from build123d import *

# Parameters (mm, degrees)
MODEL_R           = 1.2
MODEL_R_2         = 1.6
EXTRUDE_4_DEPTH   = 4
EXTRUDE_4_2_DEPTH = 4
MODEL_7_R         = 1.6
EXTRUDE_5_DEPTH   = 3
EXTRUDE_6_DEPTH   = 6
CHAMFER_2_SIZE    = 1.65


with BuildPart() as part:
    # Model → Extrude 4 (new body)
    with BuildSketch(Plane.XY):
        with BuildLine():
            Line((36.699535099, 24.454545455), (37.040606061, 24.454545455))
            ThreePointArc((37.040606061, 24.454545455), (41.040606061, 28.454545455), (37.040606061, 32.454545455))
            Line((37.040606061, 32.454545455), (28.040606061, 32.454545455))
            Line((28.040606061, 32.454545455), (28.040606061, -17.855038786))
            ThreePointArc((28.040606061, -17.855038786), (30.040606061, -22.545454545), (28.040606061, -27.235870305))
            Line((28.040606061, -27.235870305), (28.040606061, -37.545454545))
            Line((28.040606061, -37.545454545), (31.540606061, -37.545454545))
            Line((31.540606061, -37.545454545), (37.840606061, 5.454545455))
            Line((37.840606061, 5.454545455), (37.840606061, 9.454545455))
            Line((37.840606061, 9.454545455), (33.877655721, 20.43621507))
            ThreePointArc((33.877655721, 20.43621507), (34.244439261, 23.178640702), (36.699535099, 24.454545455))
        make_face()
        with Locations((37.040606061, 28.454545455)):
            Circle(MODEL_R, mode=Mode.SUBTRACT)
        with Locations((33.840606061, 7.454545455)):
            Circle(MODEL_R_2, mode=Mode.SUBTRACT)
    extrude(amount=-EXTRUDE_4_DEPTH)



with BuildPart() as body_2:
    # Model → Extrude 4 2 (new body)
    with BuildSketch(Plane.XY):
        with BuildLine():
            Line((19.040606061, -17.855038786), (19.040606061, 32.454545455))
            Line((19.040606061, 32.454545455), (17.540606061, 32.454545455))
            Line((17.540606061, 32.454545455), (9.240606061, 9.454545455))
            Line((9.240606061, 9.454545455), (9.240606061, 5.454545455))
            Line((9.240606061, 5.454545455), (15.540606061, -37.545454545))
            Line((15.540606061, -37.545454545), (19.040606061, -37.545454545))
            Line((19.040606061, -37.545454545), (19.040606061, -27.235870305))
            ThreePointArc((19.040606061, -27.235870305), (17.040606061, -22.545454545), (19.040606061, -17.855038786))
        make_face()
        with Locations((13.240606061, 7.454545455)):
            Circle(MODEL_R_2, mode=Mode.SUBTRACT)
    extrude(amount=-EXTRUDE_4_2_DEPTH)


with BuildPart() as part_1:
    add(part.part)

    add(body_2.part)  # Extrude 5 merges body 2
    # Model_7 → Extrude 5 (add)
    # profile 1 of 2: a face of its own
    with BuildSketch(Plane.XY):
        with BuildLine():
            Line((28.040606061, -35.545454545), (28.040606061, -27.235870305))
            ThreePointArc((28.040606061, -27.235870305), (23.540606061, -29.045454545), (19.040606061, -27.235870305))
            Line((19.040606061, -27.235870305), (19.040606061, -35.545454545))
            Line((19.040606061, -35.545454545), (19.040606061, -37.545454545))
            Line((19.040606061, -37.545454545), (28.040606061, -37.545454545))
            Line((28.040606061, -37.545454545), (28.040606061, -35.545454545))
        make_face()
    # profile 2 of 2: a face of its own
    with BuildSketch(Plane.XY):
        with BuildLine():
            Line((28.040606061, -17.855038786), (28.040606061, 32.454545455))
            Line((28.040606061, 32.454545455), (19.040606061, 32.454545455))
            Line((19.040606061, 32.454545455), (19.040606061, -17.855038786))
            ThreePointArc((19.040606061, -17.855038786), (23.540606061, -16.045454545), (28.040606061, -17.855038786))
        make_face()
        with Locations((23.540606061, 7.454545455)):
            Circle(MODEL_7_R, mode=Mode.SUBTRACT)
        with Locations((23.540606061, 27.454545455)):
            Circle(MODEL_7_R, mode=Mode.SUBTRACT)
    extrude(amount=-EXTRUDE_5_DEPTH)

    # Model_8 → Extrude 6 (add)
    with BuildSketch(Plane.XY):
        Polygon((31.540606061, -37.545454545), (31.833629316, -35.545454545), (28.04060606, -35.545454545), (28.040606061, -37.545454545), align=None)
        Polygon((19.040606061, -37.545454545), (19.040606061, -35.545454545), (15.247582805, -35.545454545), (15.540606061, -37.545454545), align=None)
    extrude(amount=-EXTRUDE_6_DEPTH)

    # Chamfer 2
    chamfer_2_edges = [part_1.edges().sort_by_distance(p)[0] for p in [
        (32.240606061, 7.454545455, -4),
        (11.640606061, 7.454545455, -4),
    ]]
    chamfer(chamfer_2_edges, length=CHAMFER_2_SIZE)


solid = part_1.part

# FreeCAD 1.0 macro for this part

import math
import FreeCAD as App
import Part
import Sketcher

V = App.Vector


def edges_at(feature, points):
    """Names of the edges that pass closest to the given points."""
    edges = feature.Shape.Edges
    near = lambda p: min(range(len(edges)), key=lambda i: edges[i].distToShape(Part.Vertex(*p))[0])
    return sorted({f"Edge{near(p) + 1}" for p in points})


def add_polygon(sketch, points):
    """Adds a closed chain of lines whose ends are joined by coincident constraints."""
    first, n = sketch.GeometryCount, len(points)
    for a, b in zip(points, points[1:] + points[:1]):
        sketch.addGeometry(Part.LineSegment(App.Vector(*a, 0), App.Vector(*b, 0)), False)
    for i in range(n):
        sketch.addConstraint(Sketcher.Constraint("Coincident", first + i, 2, first + (i + 1) % n, 1))

doc = App.newDocument("Part")
params = doc.addObject("Spreadsheet::Sheet", "Params")
for row, (alias, value) in enumerate([
    ("sketch1_radius", "4 mm"),
    ("sketch1_radius2", "3 mm"),
    ("sketch1_diameter", "3.2 mm"),
    ("sketch1_diameter2", "2.4 mm"),
    ("sketch1_radius3", "6.5 mm"),
    ("pad1_length", "4 mm"),
    ("sketch2_diameter", "3.2 mm"),
    ("sketch2_radius", "6.5 mm"),
    ("sketch2_height", "4 mm"),
    ("sketch2_width", "1.5 mm"),
    ("sketch2_width2", "3.5 mm"),
    ("pad2_length", "4 mm"),
    ("sketch3_diameter", "3.2 mm"),
    ("sketch3_radius", "6.5 mm"),
    ("sketch3_width", "9 mm"),
    ("pad3_length", "3 mm"),
    ("sketch4_height", "2 mm"),
    ("sketch4_width", "3.5 mm"),
    ("pad4_length", "6 mm"),
    ("chamfer_size", "1.65 mm"),
], start=1):
    params.set(f"A{row}", alias)
    params.set(f"B{row}", "=" + value)
    params.setAlias(f"B{row}", alias)

body = doc.addObject("PartDesign::Body", "Body")

sketch1 = doc.addObject("Sketcher::SketchObject", "Sketch")
body.addObject(sketch1)
sketch1.AttachmentSupport = (doc.XY_Plane, [""])
sketch1.MapMode = "FlatFace"
sketch1.addGeometry(Part.LineSegment(V(36.7, 24.45, 0), V(37.04, 24.45, 0)), False)
sketch1.addGeometry(Part.ArcOfCircle(Part.Circle(V(37.04, 28.45, 0), V(0, 0, 1), 4), math.radians(-90), math.radians(90)), False)
sketch1.addGeometry(Part.LineSegment(V(37.04, 32.45, 0), V(28.04, 32.45, 0)), False)
sketch1.addGeometry(Part.LineSegment(V(28.04, 32.45, 0), V(28.04, -17.86, 0)), False)
sketch1.addGeometry(Part.ArcOfCircle(Part.Circle(V(23.54, -22.55, 0), V(0, 0, 1), 6.5), math.radians(-46), math.radians(46)), False)
sketch1.addGeometry(Part.LineSegment(V(28.04, -27.24, 0), V(28.04, -37.55, 0)), False)
sketch1.addGeometry(Part.LineSegment(V(28.04, -37.55, 0), V(31.54, -37.55, 0)), False)
sketch1.addGeometry(Part.LineSegment(V(31.54, -37.55, 0), V(37.84, 5.45, 0)), False)
sketch1.addGeometry(Part.LineSegment(V(37.84, 5.45, 0), V(37.84, 9.45, 0)), False)
sketch1.addGeometry(Part.LineSegment(V(37.84, 9.45, 0), V(33.88, 20.44, 0)), False)
sketch1.addGeometry(Part.ArcOfCircle(Part.Circle(V(36.7, 21.45, 0), V(0, 0, 1), 3), math.radians(90), math.radians(200)), False)
sketch1.addGeometry(Part.Circle(V(33.84, 7.45, 0), V(0, 0, 1), 1.6), False)
sketch1.addGeometry(Part.Circle(V(37.04, 28.45, 0), V(0, 0, 1), 1.2), False)
sketch1.addConstraint(Sketcher.Constraint("Tangent", 0, 2, 1, 1))
sketch1.addConstraint(Sketcher.Constraint("Tangent", 1, 2, 2, 1))
sketch1.addConstraint(Sketcher.Constraint("Coincident", 2, 2, 3, 1))
sketch1.addConstraint(Sketcher.Constraint("Coincident", 3, 2, 4, 2))
sketch1.addConstraint(Sketcher.Constraint("Coincident", 4, 1, 5, 1))
sketch1.addConstraint(Sketcher.Constraint("Coincident", 5, 2, 6, 1))
sketch1.addConstraint(Sketcher.Constraint("Coincident", 6, 2, 7, 1))
sketch1.addConstraint(Sketcher.Constraint("Coincident", 7, 2, 8, 1))
sketch1.addConstraint(Sketcher.Constraint("Coincident", 8, 2, 9, 1))
sketch1.addConstraint(Sketcher.Constraint("Tangent", 9, 2, 10, 2))
sketch1.addConstraint(Sketcher.Constraint("Tangent", 10, 1, 0, 1))
sketch1.addConstraint(Sketcher.Constraint("Horizontal", 0))
sketch1.addConstraint(Sketcher.Constraint("Horizontal", 2))
sketch1.addConstraint(Sketcher.Constraint("Vertical", 3))
sketch1.addConstraint(Sketcher.Constraint("Vertical", 5))
sketch1.addConstraint(Sketcher.Constraint("Horizontal", 6))
sketch1.addConstraint(Sketcher.Constraint("Vertical", 8))
sketch1.addConstraint(Sketcher.Constraint("Coincident", 12, 3, 1, 3))
sketch1.addConstraint(Sketcher.Constraint("Vertical", 3, 2, 4, 1))
sketch1.addConstraint(Sketcher.Constraint("Radius", 1, 4.0))
sketch1.addConstraint(Sketcher.Constraint("Radius", 10, 3.0))
sketch1.addConstraint(Sketcher.Constraint("Diameter", 11, 3.2))
sketch1.addConstraint(Sketcher.Constraint("Diameter", 12, 2.4))
sketch1.addConstraint(Sketcher.Constraint("Radius", 4, 6.5))
sketch1.addConstraint(Sketcher.Constraint("DistanceX", 2, 2, 2, 1, 9.0))
sketch1.addConstraint(Sketcher.Constraint("DistanceY", 8, 1, 8, 2, 4.0))
sketch1.addConstraint(Sketcher.Constraint("DistanceX", 6, 1, 6, 2, 3.5))
sketch1.addConstraint(Sketcher.Constraint("DistanceY", 4, 3, 1, 3, 51.0))
sketch1.addConstraint(Sketcher.Constraint("DistanceY", 11, 3, 10, 3, 14.0))
sketch1.addConstraint(Sketcher.Constraint("DistanceY", 5, 2, 4, 3, 15.0))
sketch1.addConstraint(Sketcher.Constraint("DistanceX", 4, 3, 6, 2, 8.0))
sketch1.addConstraint(Sketcher.Constraint("DistanceX", 11, 3, 7, 2, 4.0))
sketch1.addConstraint(Sketcher.Constraint("DistanceY", 7, 2, 11, 3, 2.0))
sketch1.addConstraint(Sketcher.Constraint("DistanceX", 11, 3, 1, 3, 3.2))
sketch1.addConstraint(Sketcher.Constraint("DistanceX", 0, 1, 0, 2, 0.341071))
sketch1.addConstraint(Sketcher.Constraint("DistanceY", 3, 2, -1, 1, 17.855039))
sketch1.addConstraint(Sketcher.Constraint("DistanceX", -1, 1, 1, 3, 37.040606))
sketch1.setExpression("Constraints[19]", "Params.sketch1_radius")
sketch1.setExpression("Constraints[20]", "Params.sketch1_radius2")
sketch1.setExpression("Constraints[21]", "Params.sketch1_diameter")
sketch1.setExpression("Constraints[22]", "Params.sketch1_diameter2")
sketch1.setExpression("Constraints[23]", "Params.sketch1_radius3")
pad1 = doc.addObject("PartDesign::Pad", "Pad")
body.addObject(pad1)
pad1.Profile = sketch1
pad1.setExpression("Length", "Params.pad1_length")
pad1.Reversed = True
body2 = doc.addObject("PartDesign::Body", "Body001")

sketch2 = doc.addObject("Sketcher::SketchObject", "Sketch001")
body2.addObject(sketch2)
sketch2.AttachmentSupport = (doc.getObject("XY_Plane001"), [""])
sketch2.MapMode = "FlatFace"
sketch2.addGeometry(Part.LineSegment(V(19, -17.9, 0), V(19, 32.5, 0)), False)
sketch2.addGeometry(Part.LineSegment(V(19, 32.5, 0), V(17.5, 32.5, 0)), False)
sketch2.addGeometry(Part.LineSegment(V(17.5, 32.5, 0), V(9.2, 9.5, 0)), False)
sketch2.addGeometry(Part.LineSegment(V(9.2, 9.5, 0), V(9.2, 5.5, 0)), False)
sketch2.addGeometry(Part.LineSegment(V(9.2, 5.5, 0), V(15.5, -37.5, 0)), False)
sketch2.addGeometry(Part.LineSegment(V(15.5, -37.5, 0), V(19, -37.5, 0)), False)
sketch2.addGeometry(Part.LineSegment(V(19, -37.5, 0), V(19, -27.2, 0)), False)
sketch2.addGeometry(Part.ArcOfCircle(Part.Circle(V(23.5, -22.5, 0), V(0, 0, 1), 6.5), math.radians(134), math.radians(226)), False)
sketch2.addGeometry(Part.Circle(V(13.2, 7.5, 0), V(0, 0, 1), 1.6), False)
sketch2.addConstraint(Sketcher.Constraint("Coincident", 0, 2, 1, 1))
sketch2.addConstraint(Sketcher.Constraint("Coincident", 1, 2, 2, 1))
sketch2.addConstraint(Sketcher.Constraint("Coincident", 2, 2, 3, 1))
sketch2.addConstraint(Sketcher.Constraint("Coincident", 3, 2, 4, 1))
sketch2.addConstraint(Sketcher.Constraint("Coincident", 4, 2, 5, 1))
sketch2.addConstraint(Sketcher.Constraint("Coincident", 5, 2, 6, 1))
sketch2.addConstraint(Sketcher.Constraint("Coincident", 6, 2, 7, 2))
sketch2.addConstraint(Sketcher.Constraint("Coincident", 7, 1, 0, 1))
sketch2.addConstraint(Sketcher.Constraint("Vertical", 0))
sketch2.addConstraint(Sketcher.Constraint("Horizontal", 1))
sketch2.addConstraint(Sketcher.Constraint("Vertical", 3))
sketch2.addConstraint(Sketcher.Constraint("Horizontal", 5))
sketch2.addConstraint(Sketcher.Constraint("Vertical", 6))
sketch2.addConstraint(Sketcher.Constraint("Vertical", 0, 2, 5, 2))
sketch2.addConstraint(Sketcher.Constraint("Diameter", 8, 3.2))
sketch2.addConstraint(Sketcher.Constraint("Radius", 7, 6.5))
sketch2.addConstraint(Sketcher.Constraint("DistanceY", 3, 2, 3, 1, 4.0))
sketch2.addConstraint(Sketcher.Constraint("DistanceX", 1, 2, 1, 1, 1.5))
sketch2.addConstraint(Sketcher.Constraint("DistanceX", 5, 1, 5, 2, 3.5))
sketch2.addConstraint(Sketcher.Constraint("DistanceY", 7, 3, 8, 3, 30.0))
sketch2.addConstraint(Sketcher.Constraint("DistanceY", 8, 3, 0, 2, 25.0))
sketch2.addConstraint(Sketcher.Constraint("DistanceX", 1, 2, 7, 3, 6.0))
sketch2.addConstraint(Sketcher.Constraint("DistanceX", 2, 2, 8, 3, 4.0))
sketch2.addConstraint(Sketcher.Constraint("DistanceY", 8, 3, 2, 2, 2.0))
sketch2.addConstraint(Sketcher.Constraint("DistanceY", 4, 2, 7, 3, 15.0))
sketch2.addConstraint(Sketcher.Constraint("DistanceX", 8, 3, 7, 3, 10.3))
sketch2.addConstraint(Sketcher.Constraint("DistanceY", 6, 2, -1, 1, 27.23587))
sketch2.addConstraint(Sketcher.Constraint("DistanceX", -1, 1, 7, 3, 23.540606))
sketch2.setExpression("Constraints[14]", "Params.sketch2_diameter")
sketch2.setExpression("Constraints[15]", "Params.sketch2_radius")
sketch2.setExpression("Constraints[16]", "Params.sketch2_height")
sketch2.setExpression("Constraints[17]", "Params.sketch2_width")
sketch2.setExpression("Constraints[18]", "Params.sketch2_width2")
pad2 = doc.addObject("PartDesign::Pad", "Pad001")
body2.addObject(pad2)
pad2.Profile = sketch2
pad2.setExpression("Length", "Params.pad2_length")
pad2.Reversed = True
body.AllowCompound = True
doc.recompute()

boolean = doc.addObject("PartDesign::Boolean", "Boolean")
body.addObject(boolean)
boolean.Type = "Fuse"
boolean.addObjects([body2])

sketch3 = doc.addObject("Sketcher::SketchObject", "Sketch002")
body.addObject(sketch3)
sketch3.AttachmentSupport = (doc.XY_Plane, [""])
sketch3.MapMode = "FlatFace"
sketch3.addGeometry(Part.ArcOfCircle(Part.Circle(V(23.5, -22.5, 0), V(0, 0, 1), 6.5), math.radians(-134), math.radians(-46)), False)
sketch3.addGeometry(Part.LineSegment(V(19, -27.2, 0), V(19, -37.5, 0)), False)
sketch3.addGeometry(Part.LineSegment(V(19, -37.5, 0), V(28, -37.5, 0)), False)
sketch3.addGeometry(Part.LineSegment(V(28, -37.5, 0), V(28, -27.2, 0)), False)
sketch3.addGeometry(Part.LineSegment(V(28, -17.9, 0), V(28, 32.5, 0)), False)
sketch3.addGeometry(Part.LineSegment(V(28, 32.5, 0), V(19, 32.5, 0)), False)
sketch3.addGeometry(Part.LineSegment(V(19, 32.5, 0), V(19, -17.9, 0)), False)
sketch3.addGeometry(Part.ArcOfCircle(Part.Circle(V(23.5, -22.5, 0), V(0, 0, 1), 6.5), math.radians(46), math.radians(134)), False)
sketch3.addGeometry(Part.Circle(V(23.5, 7.5, 0), V(0, 0, 1), 1.6), False)
sketch3.addGeometry(Part.Circle(V(23.5, 27.5, 0), V(0, 0, 1), 1.6), False)
sketch3.addConstraint(Sketcher.Constraint("Coincident", 0, 1, 1, 1))
sketch3.addConstraint(Sketcher.Constraint("Coincident", 1, 2, 2, 1))
sketch3.addConstraint(Sketcher.Constraint("Coincident", 2, 2, 3, 1))
sketch3.addConstraint(Sketcher.Constraint("Coincident", 3, 2, 0, 2))
sketch3.addConstraint(Sketcher.Constraint("Coincident", 4, 2, 5, 1))
sketch3.addConstraint(Sketcher.Constraint("Coincident", 5, 2, 6, 1))
sketch3.addConstraint(Sketcher.Constraint("Coincident", 6, 2, 7, 2))
sketch3.addConstraint(Sketcher.Constraint("Coincident", 7, 1, 4, 1))
sketch3.addConstraint(Sketcher.Constraint("Vertical", 1))
sketch3.addConstraint(Sketcher.Constraint("Horizontal", 2))
sketch3.addConstraint(Sketcher.Constraint("Vertical", 3))
sketch3.addConstraint(Sketcher.Constraint("Vertical", 4))
sketch3.addConstraint(Sketcher.Constraint("Horizontal", 5))
sketch3.addConstraint(Sketcher.Constraint("Vertical", 6))
sketch3.addConstraint(Sketcher.Constraint("Coincident", 7, 3, 0, 3))
sketch3.addConstraint(Sketcher.Constraint("Equal", 0, 7))
sketch3.addConstraint(Sketcher.Constraint("Equal", 8, 9))
sketch3.addConstraint(Sketcher.Constraint("Horizontal", 0, 1, 3, 2))
sketch3.addConstraint(Sketcher.Constraint("Horizontal", 6, 2, 7, 1))
sketch3.addConstraint(Sketcher.Constraint("Vertical", 7, 3, 8, 3))
sketch3.addConstraint(Sketcher.Constraint("Vertical", 8, 3, 9, 3))
sketch3.addConstraint(Sketcher.Constraint("Vertical", 3, 2, 4, 2))
sketch3.addConstraint(Sketcher.Constraint("Diameter", 8, 3.2))
sketch3.addConstraint(Sketcher.Constraint("Radius", 0, 6.5))
sketch3.addConstraint(Sketcher.Constraint("DistanceX", 2, 1, 2, 2, 9.0))
sketch3.addConstraint(Sketcher.Constraint("DistanceY", 7, 3, 8, 3, 30.0))
sketch3.addConstraint(Sketcher.Constraint("DistanceY", 8, 3, 9, 3, 20.0))
sketch3.addConstraint(Sketcher.Constraint("DistanceY", 1, 2, 0, 3, 15.0))
sketch3.addConstraint(Sketcher.Constraint("DistanceY", 9, 3, 4, 2, 5.0))
sketch3.addConstraint(Sketcher.Constraint("DistanceY", 0, 1, -1, 1, 27.23587))
sketch3.addConstraint(Sketcher.Constraint("DistanceX", -1, 1, 0, 3, 23.540606))
sketch3.setExpression("Constraints[22]", "Params.sketch3_diameter")
sketch3.setExpression("Constraints[23]", "Params.sketch3_radius")
sketch3.setExpression("Constraints[24]", "Params.sketch3_width")
pad3 = doc.addObject("PartDesign::Pad", "Pad002")
body.addObject(pad3)
pad3.Profile = sketch3
pad3.setExpression("Length", "Params.pad3_length")
pad3.Reversed = True

sketch4 = doc.addObject("Sketcher::SketchObject", "Sketch003")
body.addObject(sketch4)
sketch4.AttachmentSupport = (doc.XY_Plane, [""])
sketch4.MapMode = "FlatFace"
add_polygon(sketch4, [(31.5, -37.5), (31.8, -35.5), (28, -35.5), (28, -37.5)])
add_polygon(sketch4, [(19, -37.5), (19, -35.5), (15.2, -35.5), (15.5, -37.5)])
sketch4.addConstraint(Sketcher.Constraint("Horizontal", 1))
sketch4.addConstraint(Sketcher.Constraint("Vertical", 2))
sketch4.addConstraint(Sketcher.Constraint("Horizontal", 3))
sketch4.addConstraint(Sketcher.Constraint("Vertical", 4))
sketch4.addConstraint(Sketcher.Constraint("Horizontal", 5))
sketch4.addConstraint(Sketcher.Constraint("Horizontal", 7))
sketch4.addConstraint(Sketcher.Constraint("Horizontal", 1, 2, 4, 2))
sketch4.addConstraint(Sketcher.Constraint("Horizontal", 3, 2, 6, 2))
sketch4.addConstraint(Sketcher.Constraint("Equal", 1, 5))
sketch4.addConstraint(Sketcher.Constraint("Equal", 3, 7))
sketch4.addConstraint(Sketcher.Constraint("DistanceY", 2, 2, 2, 1, 2.0))
sketch4.addConstraint(Sketcher.Constraint("DistanceX", 3, 1, 3, 2, 3.5))
sketch4.addConstraint(Sketcher.Constraint("DistanceX", 4, 2, 1, 2, 9.0))
sketch4.addConstraint(Sketcher.Constraint("Distance", 0, 2.021352))
sketch4.addConstraint(Sketcher.Constraint("DistanceX", -1, 1, 0, 2, 31.833629))
sketch4.addConstraint(Sketcher.Constraint("DistanceY", 0, 2, -1, 1, 35.545455))
sketch4.setExpression("Constraints[18]", "Params.sketch4_height")
sketch4.setExpression("Constraints[19]", "Params.sketch4_width")
pad4 = doc.addObject("PartDesign::Pad", "Pad003")
body.addObject(pad4)
pad4.Profile = sketch4
pad4.setExpression("Length", "Params.pad4_length")
pad4.Reversed = True
doc.recompute()

chamfer = doc.addObject("PartDesign::Chamfer", "Chamfer")
body.addObject(chamfer)
chamfer.Base = (pad4, edges_at(pad4, [(32.241, 7.455, -4), (11.641, 7.455, -4)]))
chamfer.setExpression("Size", "Params.chamfer_size")

doc.recompute()
